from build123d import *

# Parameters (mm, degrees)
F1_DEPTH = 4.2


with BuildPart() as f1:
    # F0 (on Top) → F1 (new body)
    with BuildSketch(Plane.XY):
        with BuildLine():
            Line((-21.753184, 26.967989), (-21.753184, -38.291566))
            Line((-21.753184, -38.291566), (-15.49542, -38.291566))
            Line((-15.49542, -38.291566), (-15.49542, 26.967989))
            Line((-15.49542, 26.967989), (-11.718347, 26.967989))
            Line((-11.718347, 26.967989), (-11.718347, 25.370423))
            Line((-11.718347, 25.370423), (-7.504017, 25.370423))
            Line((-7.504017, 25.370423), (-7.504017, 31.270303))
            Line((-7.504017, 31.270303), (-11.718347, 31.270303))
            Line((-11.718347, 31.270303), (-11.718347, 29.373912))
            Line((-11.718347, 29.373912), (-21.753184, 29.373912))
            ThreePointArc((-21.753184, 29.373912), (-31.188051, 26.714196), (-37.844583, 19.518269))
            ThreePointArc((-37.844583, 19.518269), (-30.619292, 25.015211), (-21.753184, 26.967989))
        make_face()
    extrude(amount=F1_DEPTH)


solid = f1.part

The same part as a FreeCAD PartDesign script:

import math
import FreeCAD as App
import Part
import Sketcher
Q = App.Units.Quantity

doc = App.newDocument("Part")
body = doc.addObject("PartDesign::Body", "Body")

# Sketch on XY plane
sketch1 = body.newObject("Sketcher::SketchObject", "Sketch")
sketch1.AttachmentSupport = (doc.getObject("XY_Plane"), [""])
sketch1.MapMode = "FlatFace"
sketch1.addGeometry(Part.LineSegment(App.Vector(-21.8, 27, 0), App.Vector(-21.8, -38.3, 0)), False)
sketch1.addGeometry(Part.LineSegment(App.Vector(-21.8, -38.3, 0), App.Vector(-15.5, -38.3, 0)), False)
sketch1.addGeometry(Part.LineSegment(App.Vector(-15.5, -38.3, 0), App.Vector(-15.5, 27, 0)), False)
sketch1.addGeometry(Part.LineSegment(App.Vector(-15.5, 27, 0), App.Vector(-11.7, 27, 0)), False)
sketch1.addGeometry(Part.LineSegment(App.Vector(-11.7, 27, 0), App.Vector(-11.7, 25.4, 0)), False)
sketch1.addGeometry(Part.LineSegment(App.Vector(-11.7, 25.4, 0), App.Vector(-7.5, 25.4, 0)), False)
sketch1.addGeometry(Part.LineSegment(App.Vector(-7.5, 25.4, 0), App.Vector(-7.5, 31.3, 0)), False)
sketch1.addGeometry(Part.LineSegment(App.Vector(-7.5, 31.3, 0), App.Vector(-11.7, 31.3, 0)), False)
sketch1.addGeometry(Part.LineSegment(App.Vector(-11.7, 31.3, 0), App.Vector(-11.7, 29.4, 0)), False)
sketch1.addGeometry(Part.LineSegment(App.Vector(-11.7, 29.4, 0), App.Vector(-21.8, 29.4, 0)), False)
sketch1.addGeometry(Part.ArcOfCircle(Part.Circle(App.Vector(-21.8, 11.3, 0), App.Vector(0, 0, 1), 18.1), math.radians(90), math.radians(153)), False)
sketch1.addGeometry(Part.ArcOfCircle(Part.Circle(App.Vector(-21.8, 5.9, 0), App.Vector(0, 0, 1), 21.1), math.radians(90), math.radians(140)), False)
sketch1.addConstraint(Sketcher.Constraint("Coincident", 0, 2, 1, 1))
sketch1.addConstraint(Sketcher.Constraint("Coincident", 1, 2, 2, 1))
sketch1.addConstraint(Sketcher.Constraint("Coincident", 2, 2, 3, 1))
sketch1.addConstraint(Sketcher.Constraint("Coincident", 3, 2, 4, 1))
sketch1.addConstraint(Sketcher.Constraint("Coincident", 4, 2, 5, 1))
sketch1.addConstraint(Sketcher.Constraint("Coincident", 5, 2, 6, 1))
sketch1.addConstraint(Sketcher.Constraint("Coincident", 6, 2, 7, 1))
sketch1.addConstraint(Sketcher.Constraint("Coincident", 7, 2, 8, 1))
sketch1.addConstraint(Sketcher.Constraint("Coincident", 8, 2, 9, 1))
sketch1.addConstraint(Sketcher.Constraint("Tangent", 9, 2, 10, 1))
sketch1.addConstraint(Sketcher.Constraint("Coincident", 10, 2, 11, 2))
sketch1.addConstraint(Sketcher.Constraint("Coincident", 11, 1, 0, 1))
sketch1.addConstraint(Sketcher.Constraint("Vertical", 0))
sketch1.addConstraint(Sketcher.Constraint("Horizontal", 1))
sketch1.addConstraint(Sketcher.Constraint("Vertical", 2))
sketch1.addConstraint(Sketcher.Constraint("Horizontal", 3))
sketch1.addConstraint(Sketcher.Constraint("Vertical", 4))
sketch1.addConstraint(Sketcher.Constraint("Horizontal", 5))
sketch1.addConstraint(Sketcher.Constraint("Vertical", 6))
sketch1.addConstraint(Sketcher.Constraint("Horizontal", 7))
sketch1.addConstraint(Sketcher.Constraint("Vertical", 8))
sketch1.addConstraint(Sketcher.Constraint("Horizontal", 9))
sketch1.addConstraint(Sketcher.Constraint("Horizontal", 3, 2, 11, 1))
sketch1.addConstraint(Sketcher.Constraint("Vertical", 10, 3, 11, 3))
sketch1.addConstraint(Sketcher.Constraint("Vertical", 10, 3, 0, 2))
sketch1.addConstraint(Sketcher.Constraint("Vertical", 4, 2, 7, 2))
sketch1.addConstraint(Sketcher.Constraint("Radius", 10, Q("18.064108 mm")))
sketch1.addConstraint(Sketcher.Constraint("Radius", 11, Q("21.103571 mm")))
sketch1.addConstraint(Sketcher.Constraint("DistanceX", 5, 1, 5, 2, Q("4.21433 mm")))
sketch1.addConstraint(Sketcher.Constraint("DistanceY", 6, 1, 6, 2, Q("5.89988 mm")))
sketch1.addConstraint(Sketcher.Constraint("DistanceY", 8, 2, 8, 1, Q("1.896391 mm")))
sketch1.addConstraint(Sketcher.Constraint("DistanceX", 10, 2, 10, 3, Q("16.091399 mm")))
sketch1.addConstraint(Sketcher.Constraint("DistanceX", 1, 1, 1, 2, Q("6.257764 mm")))
sketch1.addConstraint(Sketcher.Constraint("DistanceX", 3, 1, 3, 2, Q("3.777073 mm")))
sketch1.addConstraint(Sketcher.Constraint("DistanceY", 0, 2, 0, 1, Q("65.259555 mm")))
sketch1.addConstraint(Sketcher.Constraint("DistanceY", -1, 1, 11, 3, Q("5.864418 mm")))
sketch1.addConstraint(Sketcher.Constraint("DistanceX", 1, 2, -1, 1, Q("15.49542 mm")))
pad1 = body.newObject("PartDesign::Pad", "Pad")
pad1.Profile = sketch1
pad1.Length = 4.2

doc.recompute()
